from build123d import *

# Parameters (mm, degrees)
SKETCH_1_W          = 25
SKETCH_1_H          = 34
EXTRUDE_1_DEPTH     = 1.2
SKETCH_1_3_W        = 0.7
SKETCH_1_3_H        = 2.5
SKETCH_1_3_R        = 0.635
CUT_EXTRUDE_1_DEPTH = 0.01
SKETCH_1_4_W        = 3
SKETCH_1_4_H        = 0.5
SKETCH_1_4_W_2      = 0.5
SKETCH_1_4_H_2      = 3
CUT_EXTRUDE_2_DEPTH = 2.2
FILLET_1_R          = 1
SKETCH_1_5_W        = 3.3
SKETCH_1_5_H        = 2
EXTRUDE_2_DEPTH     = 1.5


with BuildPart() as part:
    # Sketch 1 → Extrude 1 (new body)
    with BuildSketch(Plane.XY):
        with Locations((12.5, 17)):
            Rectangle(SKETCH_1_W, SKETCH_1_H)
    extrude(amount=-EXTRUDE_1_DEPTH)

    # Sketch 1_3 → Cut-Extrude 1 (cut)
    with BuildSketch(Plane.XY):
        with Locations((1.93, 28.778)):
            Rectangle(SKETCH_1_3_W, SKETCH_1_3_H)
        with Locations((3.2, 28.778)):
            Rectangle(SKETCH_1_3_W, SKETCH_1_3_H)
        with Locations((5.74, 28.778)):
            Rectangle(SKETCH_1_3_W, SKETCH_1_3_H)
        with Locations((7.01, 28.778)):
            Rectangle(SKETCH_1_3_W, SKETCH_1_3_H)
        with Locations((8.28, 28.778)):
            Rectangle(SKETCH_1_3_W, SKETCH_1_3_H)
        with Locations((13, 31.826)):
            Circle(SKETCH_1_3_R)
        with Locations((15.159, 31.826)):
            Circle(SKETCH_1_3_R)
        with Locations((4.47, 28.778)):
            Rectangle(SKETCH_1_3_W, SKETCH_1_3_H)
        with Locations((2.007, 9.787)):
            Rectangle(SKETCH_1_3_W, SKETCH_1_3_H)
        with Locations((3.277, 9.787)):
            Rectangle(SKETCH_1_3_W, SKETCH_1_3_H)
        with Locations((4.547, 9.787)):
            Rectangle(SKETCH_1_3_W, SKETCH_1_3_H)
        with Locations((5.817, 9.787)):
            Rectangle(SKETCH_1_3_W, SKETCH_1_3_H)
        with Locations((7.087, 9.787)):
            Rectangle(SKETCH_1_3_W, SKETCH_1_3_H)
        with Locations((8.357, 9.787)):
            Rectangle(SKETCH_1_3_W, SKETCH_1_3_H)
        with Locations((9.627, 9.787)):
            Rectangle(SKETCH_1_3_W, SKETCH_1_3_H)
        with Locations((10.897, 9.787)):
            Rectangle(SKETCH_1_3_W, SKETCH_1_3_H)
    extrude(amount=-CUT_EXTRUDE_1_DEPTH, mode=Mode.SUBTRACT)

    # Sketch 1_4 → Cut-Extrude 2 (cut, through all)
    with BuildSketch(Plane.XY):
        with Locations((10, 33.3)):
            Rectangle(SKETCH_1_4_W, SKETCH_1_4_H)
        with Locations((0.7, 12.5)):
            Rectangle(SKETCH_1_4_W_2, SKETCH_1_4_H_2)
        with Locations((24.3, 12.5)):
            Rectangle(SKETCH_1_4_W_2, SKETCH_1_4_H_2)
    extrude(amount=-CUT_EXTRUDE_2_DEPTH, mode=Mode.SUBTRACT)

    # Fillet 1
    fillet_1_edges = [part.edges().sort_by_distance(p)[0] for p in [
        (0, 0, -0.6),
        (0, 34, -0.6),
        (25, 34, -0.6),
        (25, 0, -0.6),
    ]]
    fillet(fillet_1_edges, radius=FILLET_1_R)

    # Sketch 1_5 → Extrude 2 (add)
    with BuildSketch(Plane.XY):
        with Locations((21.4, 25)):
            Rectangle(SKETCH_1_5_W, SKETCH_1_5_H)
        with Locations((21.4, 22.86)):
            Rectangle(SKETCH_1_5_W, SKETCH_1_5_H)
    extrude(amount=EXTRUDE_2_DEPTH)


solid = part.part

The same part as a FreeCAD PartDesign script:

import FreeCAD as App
import Part
import Sketcher

V = App.Vector


def edges_at(feature, points):
    """Names of the edges that pass closest to the given points."""
    edges = feature.Shape.Edges
    near = lambda p: min(range(len(edges)), key=lambda i: edges[i].distToShape(Part.Vertex(*p))[0])
    return sorted({f"Edge{near(p) + 1}" for p in points})


def add_polygon(sketch, points):
    """Adds a closed chain of lines whose ends are joined by coincident constraints."""
    first, n = sketch.GeometryCount, len(points)
    for a, b in zip(points, points[1:] + points[:1]):
        sketch.addGeometry(Part.LineSegment(App.Vector(*a, 0), App.Vector(*b, 0)), False)
    for i in range(n):
        sketch.addConstraint(Sketcher.Constraint("Coincident", first + i, 2, first + (i + 1) % n, 1))

doc = App.newDocument("Part")
body = doc.addObject("PartDesign::Body", "Body")

# Sketch on XY plane
sketch1 = body.newObject("Sketcher::SketchObject", "Sketch")
sketch1.AttachmentSupport = (doc.getObject("XY_Plane"), [""])
sketch1.MapMode = "FlatFace"
add_polygon(sketch1, [(0, 34), (0, 0), (25, 0), (25, 34)])  # lines 0-3
sketch1.addConstraint([
    Sketcher.Constraint("Vertical", 0),
    Sketcher.Constraint("Horizontal", 1),
    Sketcher.Constraint("Vertical", 2),
    Sketcher.Constraint("Horizontal", 3),
    Sketcher.Constraint("Coincident", 0, 2, -1, 1),
    Sketcher.Constraint("DistanceX", 1, 1, 1, 2, 25.0),
    Sketcher.Constraint("DistanceY", 0, 2, 0, 1, 34.0),
])
pad1 = body.newObject("PartDesign::Pad", "Pad")
pad1.Profile = sketch1
pad1.Length = 1.2
pad1.Reversed = True

# Sketch on XY plane
sketch2 = body.newObject("Sketcher::SketchObject", "Sketch001")
sketch2.AttachmentSupport = (doc.getObject("XY_Plane"), [""])
sketch2.MapMode = "FlatFace"
add_polygon(sketch2, [(1.6, 30), (1.6, 27.5), (2.3, 27.5), (2.3, 30)])  # lines 0-3
add_polygon(sketch2, [(2.9, 30), (2.9, 27.5), (3.5, 27.5), (3.5, 30)])  # lines 4-7
add_polygon(sketch2, [(5.4, 30), (5.4, 27.5), (6.1, 27.5), (6.1, 30)])  # lines 8-11
add_polygon(sketch2, [(6.7, 30), (6.7, 27.5), (7.4, 27.5), (7.4, 30)])  # lines 12-15
add_polygon(sketch2, [(7.9, 30), (7.9, 27.5), (8.6, 27.5), (8.6, 30)])  # lines 16-19
sketch2.addGeometry(Part.Circle(V(13, 31.8, 0), V(0, 0, 1), 0.6), False)  # 20
sketch2.addGeometry(Part.Circle(V(15.2, 31.8, 0), V(0, 0, 1), 0.6), False)  # 21
add_polygon(sketch2, [(4.1, 30), (4.1, 27.5), (4.8, 27.5), (4.8, 30)])  # lines 22-25
add_polygon(sketch2, [(1.7, 11), (1.7, 8.5), (2.4, 8.5), (2.4, 11)])  # lines 26-29
add_polygon(sketch2, [(2.9, 11), (2.9, 8.5), (3.6, 8.5), (3.6, 11)])  # lines 30-33
add_polygon(sketch2, [(4.2, 11), (4.2, 8.5), (4.9, 8.5), (4.9, 11)])  # lines 34-37
add_polygon(sketch2, [(5.5, 11), (5.5, 8.5), (6.2, 8.5), (6.2, 11)])  # lines 38-41
add_polygon(sketch2, [(6.7, 11), (6.7, 8.5), (7.4, 8.5), (7.4, 11)])  # lines 42-45
add_polygon(sketch2, [(8, 11), (8, 8.5), (8.7, 8.5), (8.7, 11)])  # lines 46-49
add_polygon(sketch2, [(9.3, 11), (9.3, 8.5), (10, 8.5), (10, 11)])  # lines 50-53
add_polygon(sketch2, [(10.5, 11), (10.5, 8.5), (11.2, 8.5), (11.2, 11)])  # lines 54-57
sketch2.addConstraint([
    Sketcher.Constraint("Vertical", 0),
    Sketcher.Constraint("Horizontal", 1),
    Sketcher.Constraint("Vertical", 2),
    Sketcher.Constraint("Horizontal", 3),
    Sketcher.Constraint("Vertical", 4),
    Sketcher.Constraint("Horizontal", 5),
    Sketcher.Constraint("Vertical", 6),
    Sketcher.Constraint("Horizontal", 7),
    Sketcher.Constraint("Vertical", 8),
    Sketcher.Constraint("Horizontal", 9),
    Sketcher.Constraint("Vertical", 10),
    Sketcher.Constraint("Horizontal", 11),
    Sketcher.Constraint("Vertical", 12),
    Sketcher.Constraint("Horizontal", 13),
    Sketcher.Constraint("Vertical", 14),
    Sketcher.Constraint("Horizontal", 15),
    Sketcher.Constraint("Vertical", 16),
    Sketcher.Constraint("Horizontal", 17),
    Sketcher.Constraint("Vertical", 18),
    Sketcher.Constraint("Horizontal", 19),
    Sketcher.Constraint("Vertical", 22),
    Sketcher.Constraint("Horizontal", 23),
    Sketcher.Constraint("Vertical", 24),
    Sketcher.Constraint("Horizontal", 25),
    Sketcher.Constraint("Vertical", 26),
    Sketcher.Constraint("Horizontal", 27),
    Sketcher.Constraint("Vertical", 28),
    Sketcher.Constraint("Horizontal", 29),
    Sketcher.Constraint("Vertical", 30),
    Sketcher.Constraint("Horizontal", 31),
    Sketcher.Constraint("Vertical", 32),
    Sketcher.Constraint("Horizontal", 33),
    Sketcher.Constraint("Vertical", 34),
    Sketcher.Constraint("Horizontal", 35),
    Sketcher.Constraint("Vertical", 36),
    Sketcher.Constraint("Horizontal", 37),
    Sketcher.Constraint("Vertical", 38),
    Sketcher.Constraint("Horizontal", 39),
    Sketcher.Constraint("Vertical", 40),
    Sketcher.Constraint("Horizontal", 41),
    Sketcher.Constraint("Vertical", 42),
    Sketcher.Constraint("Horizontal", 43),
    Sketcher.Constraint("Vertical", 44),
    Sketcher.Constraint("Horizontal", 45),
    Sketcher.Constraint("Vertical", 46),
    Sketcher.Constraint("Horizontal", 47),
    Sketcher.Constraint("Vertical", 48),
    Sketcher.Constraint("Horizontal", 49),
    Sketcher.Constraint("Vertical", 50),
    Sketcher.Constraint("Horizontal", 51),
    Sketcher.Constraint("Vertical", 52),
    Sketcher.Constraint("Horizontal", 53),
    Sketcher.Constraint("Vertical", 54),
    Sketcher.Constraint("Horizontal", 55),
    Sketcher.Constraint("Vertical", 56),
    Sketcher.Constraint("Horizontal", 57),
    Sketcher.Constraint("Equal", 20, 21),
    Sketcher.Constraint("Horizontal", 20, 3, 21, 3),
    Sketcher.Constraint("Horizontal", 1, 2, 4, 2),
    Sketcher.Constraint("Horizontal", 3, 2, 6, 2),
    Sketcher.Constraint("Horizontal", 5, 2, 8, 2),
    Sketcher.Constraint("Horizontal", 7, 2, 10, 2),
    Sketcher.Constraint("Horizontal", 9, 2, 12, 2),
    Sketcher.Constraint("Horizontal", 11, 2, 14, 2),
    Sketcher.Constraint("Horizontal", 13, 2, 16, 2),
    Sketcher.Constraint("Horizontal", 15, 2, 18, 2),
    Sketcher.Constraint("Horizontal", 17, 2, 22, 2),
    Sketcher.Constraint("Horizontal", 19, 2, 24, 2),
    Sketcher.Constraint("Horizontal", 27, 2, 30, 2),
    Sketcher.Constraint("Horizontal", 29, 2, 32, 2),
    Sketcher.Constraint("Horizontal", 31, 2, 34, 2),
    Sketcher.Constraint("Horizontal", 33, 2, 36, 2),
    Sketcher.Constraint("Horizontal", 35, 2, 38, 2),
    Sketcher.Constraint("Horizontal", 37, 2, 40, 2),
    Sketcher.Constraint("Horizontal", 39, 2, 42, 2),
    Sketcher.Constraint("Horizontal", 41, 2, 44, 2),
    Sketcher.Constraint("Horizontal", 43, 2, 46, 2),
    Sketcher.Constraint("Horizontal", 45, 2, 48, 2),
    Sketcher.Constraint("Horizontal", 47, 2, 50, 2),
    Sketcher.Constraint("Horizontal", 49, 2, 52, 2),
    Sketcher.Constraint("Horizontal", 51, 2, 54, 2),
    Sketcher.Constraint("Horizontal", 53, 2, 56, 2),
    Sketcher.Constraint("Equal", 3, 5),
    Sketcher.Constraint("Equal", 7, 9),
    Sketcher.Constraint("Equal", 11, 13),
    Sketcher.Constraint("Equal", 15, 17),
    Sketcher.Constraint("Equal", 19, 23),
    Sketcher.Constraint("Equal", 25, 27),
    Sketcher.Constraint("Equal", 29, 31),
    Sketcher.Constraint("Equal", 33, 35),
    Sketcher.Constraint("Equal", 37, 39),
    Sketcher.Constraint("Equal", 41, 43),
    Sketcher.Constraint("Equal", 45, 47),
    Sketcher.Constraint("Equal", 49, 51),
    Sketcher.Constraint("Equal", 53, 55),
    Sketcher.Constraint("Equal", 24, 26),
    Sketcher.Constraint("Diameter", 20, 1.27),
    Sketcher.Constraint("DistanceX", 1, 1, 1, 2, 0.7),
    Sketcher.Constraint("DistanceY", 0, 2, 0, 1, 2.5),
    Sketcher.Constraint("DistanceX", -1, 1, 20, 3, 13.0),
    Sketcher.Constraint("DistanceX", -1, 1, 0, 2, 1.58),
    Sketcher.Constraint("DistanceX", -1, 1, 4, 2, 2.85),
    Sketcher.Constraint("DistanceX", -1, 1, 8, 2, 5.39),
    Sketcher.Constraint("DistanceX", -1, 1, 12, 2, 6.66),
    Sketcher.Constraint("DistanceX", -1, 1, 16, 2, 7.93),
    Sketcher.Constraint("DistanceX", -1, 1, 22, 2, 4.12),
    Sketcher.Constraint("DistanceX", 27, 2, 30, 2, 0.57),
    Sketcher.Constraint("DistanceX", 31, 2, 34, 2, 0.57),
    Sketcher.Constraint("DistanceX", 35, 2, 38, 2, 0.57),
    Sketcher.Constraint("DistanceX", 39, 2, 42, 2, 0.57),
    Sketcher.Constraint("DistanceX", 43, 2, 46, 2, 0.57),
    Sketcher.Constraint("DistanceX", 47, 2, 50, 2, 0.57),
    Sketcher.Constraint("DistanceX", 51, 2, 54, 2, 0.57),
    Sketcher.Constraint("DistanceY", -1, 1, 20, 3, 31.826),
    Sketcher.Constraint("DistanceX", -1, 1, 21, 3, 15.159),
    Sketcher.Constraint("DistanceY", -1, 1, 0, 2, 27.528),
    Sketcher.Constraint("DistanceX", -1, 1, 26, 2, 1.657),
    Sketcher.Constraint("DistanceY", -1, 1, 26, 2, 8.537),
])
pocket1 = body.newObject("PartDesign::Pocket", "Pocket")
pocket1.Profile = sketch2
pocket1.Length = 0.01

# Sketch on XY plane
sketch3 = body.newObject("Sketcher::SketchObject", "Sketch002")
sketch3.AttachmentSupport = (doc.getObject("XY_Plane"), [""])
sketch3.MapMode = "FlatFace"
add_polygon(sketch3, [(8.5, 33.55), (8.5, 33.05), (11.5, 33.05), (11.5, 33.55)])  # lines 0-3
add_polygon(sketch3, [(0.45, 14), (0.45, 11), (0.95, 11), (0.95, 14)])  # lines 4-7
add_polygon(sketch3, [(24.05, 14), (24.05, 11), (24.55, 11), (24.55, 14)])  # lines 8-11
sketch3.addConstraint([
    Sketcher.Constraint("Vertical", 0),
    Sketcher.Constraint("Horizontal", 1),
    Sketcher.Constraint("Vertical", 2),
    Sketcher.Constraint("Horizontal", 3),
    Sketcher.Constraint("Vertical", 4),
    Sketcher.Constraint("Horizontal", 5),
    Sketcher.Constraint("Vertical", 6),
    Sketcher.Constraint("Horizontal", 7),
    Sketcher.Constraint("Vertical", 8),
    Sketcher.Constraint("Horizontal", 9),
    Sketcher.Constraint("Vertical", 10),
    Sketcher.Constraint("Horizontal", 11),
    Sketcher.Constraint("Horizontal", 5, 2, 8, 2),
    Sketcher.Constraint("Horizontal", 7, 2, 10, 2),
    Sketcher.Constraint("Equal", 7, 9),
    Sketcher.Constraint("Equal", 11, 0),
    Sketcher.Constraint("Equal", 3, 4),
    Sketcher.Constraint("DistanceX", 1, 1, 1, 2, 3.0),
    Sketcher.Constraint("DistanceX", 5, 1, 5, 2, 0.5),
    Sketcher.Constraint("DistanceY", -1, 1, 4, 2, 11.0),
    Sketcher.Constraint("DistanceX", -1, 1, 0, 2, 8.5),
    Sketcher.Constraint("DistanceX", 5, 2, 8, 2, 23.1),
    Sketcher.Constraint("DistanceY", -1, 1, 0, 2, 33.05),
    Sketcher.Constraint("DistanceX", -1, 1, 4, 2, 0.45),
])
pocket2 = body.newObject("PartDesign::Pocket", "Pocket001")
pocket2.Profile = sketch3
pocket2.Type = "ThroughAll"
doc.recompute()

fillet = body.newObject("PartDesign::Fillet", "Fillet")
fillet.Base = (pocket2, edges_at(pocket2, [
    (0, 0, -0.6),
    (0, 34, -0.6),
    (25, 34, -0.6),
    (25, 0, -0.6),
]))
fillet.Radius = 1

# Sketch on XY plane
sketch4 = body.newObject("Sketcher::SketchObject", "Sketch003")
sketch4.AttachmentSupport = (doc.getObject("XY_Plane"), [""])
sketch4.MapMode = "FlatFace"
add_polygon(sketch4, [(19.8, 26), (19.8, 24), (23.1, 24), (23.1, 26)])  # lines 0-3
add_polygon(sketch4, [(19.8, 23.9), (19.8, 21.9), (23.1, 21.9), (23.1, 23.9)])  # lines 4-7
sketch4.addConstraint([
    Sketcher.Constraint("Vertical", 0),
    Sketcher.Constraint("Horizontal", 1),
    Sketcher.Constraint("Vertical", 2),
    Sketcher.Constraint("Horizontal", 3),
    Sketcher.Constraint("Vertical", 4),
    Sketcher.Constraint("Horizontal", 5),
    Sketcher.Constraint("Vertical", 6),
    Sketcher.Constraint("Horizontal", 7),
    Sketcher.Constraint("Vertical", 3, 2, 4, 2),
    Sketcher.Constraint("Vertical", 2, 2, 5, 2),
    Sketcher.Constraint("Equal", 2, 4),
    Sketcher.Constraint("DistanceY", 0, 2, 0, 1, 2.0),
    Sketcher.Constraint("DistanceX", 1, 1, 1, 2, 3.3),
    Sketcher.Constraint("DistanceY", -1, 1, 0, 2, 24.0),
    Sketcher.Constraint("DistanceX", -1, 1, 0, 2, 19.75),
    Sketcher.Constraint("DistanceY", -1, 1, 4, 2, 21.86),
])
pad2 = body.newObject("PartDesign::Pad", "Pad001")
pad2.Profile = sketch4
pad2.Length = 1.5

doc.recompute()
